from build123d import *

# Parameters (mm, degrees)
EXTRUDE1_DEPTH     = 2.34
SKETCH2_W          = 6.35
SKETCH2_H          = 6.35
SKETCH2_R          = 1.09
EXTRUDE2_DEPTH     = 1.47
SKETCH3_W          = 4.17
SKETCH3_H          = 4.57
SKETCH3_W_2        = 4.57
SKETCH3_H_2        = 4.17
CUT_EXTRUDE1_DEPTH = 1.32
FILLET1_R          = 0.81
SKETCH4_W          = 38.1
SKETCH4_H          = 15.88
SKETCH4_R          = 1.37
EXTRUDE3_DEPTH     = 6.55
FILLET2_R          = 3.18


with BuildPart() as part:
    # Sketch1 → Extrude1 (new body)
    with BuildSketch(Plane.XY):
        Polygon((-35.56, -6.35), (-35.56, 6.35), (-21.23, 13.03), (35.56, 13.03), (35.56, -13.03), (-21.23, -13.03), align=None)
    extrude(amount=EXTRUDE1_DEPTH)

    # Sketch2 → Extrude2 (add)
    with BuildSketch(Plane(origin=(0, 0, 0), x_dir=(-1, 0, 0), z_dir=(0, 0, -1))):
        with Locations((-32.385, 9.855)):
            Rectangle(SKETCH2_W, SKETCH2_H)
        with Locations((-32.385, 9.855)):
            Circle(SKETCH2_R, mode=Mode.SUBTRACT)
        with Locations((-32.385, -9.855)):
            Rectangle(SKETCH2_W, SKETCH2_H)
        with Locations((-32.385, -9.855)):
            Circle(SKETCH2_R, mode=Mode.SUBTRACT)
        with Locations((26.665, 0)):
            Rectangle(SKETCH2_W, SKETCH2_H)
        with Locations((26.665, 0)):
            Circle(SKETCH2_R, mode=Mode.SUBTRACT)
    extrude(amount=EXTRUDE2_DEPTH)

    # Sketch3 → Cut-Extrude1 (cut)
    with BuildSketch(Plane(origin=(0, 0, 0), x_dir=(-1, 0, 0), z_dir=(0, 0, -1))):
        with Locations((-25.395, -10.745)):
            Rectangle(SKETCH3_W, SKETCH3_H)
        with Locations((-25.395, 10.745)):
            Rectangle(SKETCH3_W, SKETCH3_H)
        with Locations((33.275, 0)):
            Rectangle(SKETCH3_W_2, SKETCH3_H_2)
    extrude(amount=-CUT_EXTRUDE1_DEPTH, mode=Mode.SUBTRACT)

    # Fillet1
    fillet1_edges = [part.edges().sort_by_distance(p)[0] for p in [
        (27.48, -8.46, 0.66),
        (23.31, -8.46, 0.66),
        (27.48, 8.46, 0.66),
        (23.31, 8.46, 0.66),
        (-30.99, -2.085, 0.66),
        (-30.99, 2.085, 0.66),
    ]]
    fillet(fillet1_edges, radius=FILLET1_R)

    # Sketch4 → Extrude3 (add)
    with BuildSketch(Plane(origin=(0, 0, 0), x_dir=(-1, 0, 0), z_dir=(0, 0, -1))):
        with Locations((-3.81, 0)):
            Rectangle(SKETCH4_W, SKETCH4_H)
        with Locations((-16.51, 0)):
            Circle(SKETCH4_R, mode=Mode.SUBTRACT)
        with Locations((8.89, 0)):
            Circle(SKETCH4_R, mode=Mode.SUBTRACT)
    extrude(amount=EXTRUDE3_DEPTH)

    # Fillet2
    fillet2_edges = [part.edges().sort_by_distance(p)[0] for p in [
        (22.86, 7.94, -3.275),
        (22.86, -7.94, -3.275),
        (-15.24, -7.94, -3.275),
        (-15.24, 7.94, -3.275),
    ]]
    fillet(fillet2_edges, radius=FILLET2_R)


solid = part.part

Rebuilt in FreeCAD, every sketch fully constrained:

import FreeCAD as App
import Part
import Sketcher

V = App.Vector
Q = App.Units.Quantity


def edges_at(feature, points):
    """Names of the edges that pass closest to the given points."""
    edges = feature.Shape.Edges
    near = lambda p: min(range(len(edges)), key=lambda i: edges[i].distToShape(Part.Vertex(*p))[0])
    return sorted({f"Edge{near(p) + 1}" for p in points})


def add_polygon(sketch, points):
    """Adds a closed chain of lines whose ends are joined by coincident constraints."""
    first, n = sketch.GeometryCount, len(points)
    for a, b in zip(points, points[1:] + points[:1]):
        sketch.addGeometry(Part.LineSegment(App.Vector(*a, 0), App.Vector(*b, 0)), False)
    for i in range(n):
        sketch.addConstraint(Sketcher.Constraint("Coincident", first + i, 2, first + (i + 1) % n, 1))

doc = App.newDocument("Part")
body = doc.addObject("PartDesign::Body", "Body")

# Sketch on XY plane
sketch1 = body.newObject("Sketcher::SketchObject", "Sketch")
sketch1.AttachmentSupport = (doc.getObject("XY_Plane"), [""])
sketch1.MapMode = "FlatFace"
add_polygon(sketch1, [(-36, 6), (-36, -6), (-21, -13), (36, -13), (36, 13), (-21, 13)])  # lines 0-5
sketch1.addConstraint([
    Sketcher.Constraint("Vertical", 0),
    Sketcher.Constraint("Horizontal", 2),
    Sketcher.Constraint("Vertical", 3),
    Sketcher.Constraint("Horizontal", 4),
    Sketcher.Constraint("Symmetric", 1, 2, 4, 2, -1),
    Sketcher.Constraint("Equal", 1, 5),
    Sketcher.Constraint("DistanceY", 0, 2, 0, 1, Q("0.5 in")),
    Sketcher.Constraint("DistanceX", 0, 2, -1, 1, Q("1.4 in")),
    Sketcher.Constraint("DistanceX", -1, 1, 2, 2, Q("1.4 in")),
    Sketcher.Constraint("DistanceX", 2, 1, 2, 2, 56.79),
    Sketcher.Constraint("DistanceY", 3, 1, 3, 2, 26.06),
])
pad1 = body.newObject("PartDesign::Pad", "Pad")
pad1.Profile = sketch1
pad1.Length = 2.34

# Sketch on XY plane
sketch2 = body.newObject("Sketcher::SketchObject", "Sketch001")
sketch2.AttachmentSupport = (doc.getObject("XY_Plane"), [""])
sketch2.MapMode = "FlatFace"
add_polygon(sketch2, [(35.6, 13), (35.6, 6.7), (29.2, 6.7), (29.2, 13)])  # lines 0-3
sketch2.addGeometry(Part.Circle(V(32.4, 9.9, 0), V(0, 0, 1), 1.1), False)  # 4
add_polygon(sketch2, [(35.6, -6.7), (35.6, -13), (29.2, -13), (29.2, -6.7)])  # lines 5-8
sketch2.addGeometry(Part.Circle(V(32.4, -9.9, 0), V(0, 0, 1), 1.1), False)  # 9
add_polygon(sketch2, [(-23.5, 3.2), (-23.5, -3.2), (-29.8, -3.2), (-29.8, 3.2)])  # lines 10-13
sketch2.addGeometry(Part.Circle(V(-26.7, 0, 0), V(0, 0, 1), 1.1), False)  # 14
sketch2.addConstraint([
    Sketcher.Constraint("Vertical", 0),
    Sketcher.Constraint("Horizontal", 1),
    Sketcher.Constraint("Vertical", 2),
    Sketcher.Constraint("Horizontal", 3),
    Sketcher.Constraint("Vertical", 5),
    Sketcher.Constraint("Horizontal", 6),
    Sketcher.Constraint("Vertical", 7),
    Sketcher.Constraint("Horizontal", 8),
    Sketcher.Constraint("Vertical", 10),
    Sketcher.Constraint("Horizontal", 11),
    Sketcher.Constraint("Vertical", 12),
    Sketcher.Constraint("Horizontal", 13),
    Sketcher.Constraint("Equal", 4, 9),
    Sketcher.Constraint("Equal", 9, 14),
    Sketcher.Constraint("Symmetric", 4, 3, 9, 3, -1),
    Sketcher.Constraint("Symmetric", 3, 2, 5, 2, -1),
    Sketcher.Constraint("Symmetric", 1, 2, 7, 2, -1),
    Sketcher.Constraint("PointOnObject", 14, 3, -1),
    Sketcher.Constraint("Equal", 8, 11),
    Sketcher.Constraint("Equal", 13, 0),
    Sketcher.Constraint("Equal", 7, 10),
    Sketcher.Constraint("DistanceX", 1, 2, 1, 1, Q("0.25 in")),
    Sketcher.Constraint("DistanceX", -1, 1, 0, 2, Q("1.4 in")),
    Sketcher.Constraint("Diameter", 4, 2.18),
    Sketcher.Constraint("DistanceX", -1, 1, 4, 3, Q("1.275 in")),
    Sketcher.Constraint("DistanceY", 10, 2, -1, 1, Q("0.125 in")),
    Sketcher.Constraint("DistanceY", 0, 2, 4, 3, Q("0.125 in")),
    Sketcher.Constraint("DistanceX", 14, 3, 10, 2, Q("0.125 in")),
    Sketcher.Constraint("DistanceY", -1, 1, 4, 3, 9.855),
    Sketcher.Constraint("DistanceX", 14, 3, -1, 1, 26.665),
])
pad2 = body.newObject("PartDesign::Pad", "Pad001")
pad2.Profile = sketch2
pad2.Length = 1.47
pad2.Reversed = True

# Sketch on XY plane
sketch3 = body.newObject("Sketcher::SketchObject", "Sketch002")
sketch3.AttachmentSupport = (doc.getObject("XY_Plane"), [""])
sketch3.MapMode = "FlatFace"
add_polygon(sketch3, [(27.5, -8.5), (27.5, -13), (23.3, -13), (23.3, -8.5)])  # lines 0-3
add_polygon(sketch3, [(27.5, 13), (27.5, 8.5), (23.3, 8.5), (23.3, 13)])  # lines 4-7
add_polygon(sketch3, [(-31, 2.1), (-31, -2.1), (-35.6, -2.1), (-35.6, 2.1)])  # lines 8-11
sketch3.addConstraint([
    Sketcher.Constraint("Vertical", 0),
    Sketcher.Constraint("Horizontal", 1),
    Sketcher.Constraint("Vertical", 2),
    Sketcher.Constraint("Horizontal", 3),
    Sketcher.Constraint("Vertical", 4),
    Sketcher.Constraint("Horizontal", 5),
    Sketcher.Constraint("Vertical", 6),
    Sketcher.Constraint("Horizontal", 7),
    Sketcher.Constraint("Vertical", 8),
    Sketcher.Constraint("Horizontal", 9),
    Sketcher.Constraint("Vertical", 10),
    Sketcher.Constraint("Horizontal", 11),
    Sketcher.Constraint("Symmetric", 3, 2, 4, 2, -1),
    Sketcher.Constraint("Symmetric", 1, 2, 6, 2, -1),
    Sketcher.Constraint("Equal", 11, 0),
    Sketcher.Constraint("Equal", 7, 8),
    Sketcher.Constraint("DistanceX", 9, 2, -1, 1, Q("1.4 in")),
    Sketcher.Constraint("DistanceX", 1, 2, 1, 1, 4.17),
    Sketcher.Constraint("DistanceX", 9, 2, 9, 1, 4.57),
    Sketcher.Constraint("DistanceX", -1, 1, 0, 2, 27.48),
    Sketcher.Constraint("DistanceY", 0, 2, -1, 1, 13.03),
    Sketcher.Constraint("DistanceY", 8, 2, -1, 1, 2.085),
])
pocket1 = body.newObject("PartDesign::Pocket", "Pocket")
pocket1.Profile = sketch3
pocket1.Length = 1.32
pocket1.Reversed = True
doc.recompute()

fillet = body.newObject("PartDesign::Fillet", "Fillet")
fillet.Base = (pocket1, edges_at(pocket1, [
    (27.48, -8.46, 0.66),
    (23.31, -8.46, 0.66),
    (27.48, 8.46, 0.66),
    (23.31, 8.46, 0.66),
    (-30.99, -2.085, 0.66),
    (-30.99, 2.085, 0.66),
]))
fillet.Radius = 0.81

# Sketch on XY plane
sketch4 = body.newObject("Sketcher::SketchObject", "Sketch003")
sketch4.AttachmentSupport = (doc.getObject("XY_Plane"), [""])
sketch4.MapMode = "FlatFace"
add_polygon(sketch4, [(22.9, 7.9), (22.9, -7.9), (-15.2, -7.9), (-15.2, 7.9)])  # lines 0-3
sketch4.addGeometry(Part.Circle(V(16.5, 0, 0), V(0, 0, 1), 1.4), False)  # 4
sketch4.addGeometry(Part.Circle(V(-8.9, 0, 0), V(0, 0, 1), 1.4), False)  # 5
sketch4.addConstraint([
    Sketcher.Constraint("Vertical", 0),
    Sketcher.Constraint("Horizontal", 1),
    Sketcher.Constraint("Vertical", 2),
    Sketcher.Constraint("Horizontal", 3),
    Sketcher.Constraint("Equal", 4, 5),
    Sketcher.Constraint("PointOnObject", 4, 3, -1),
    Sketcher.Constraint("PointOnObject", 5, 3, -1),
    Sketcher.Constraint("DistanceX", 1, 2, 1, 1, Q("1.5 in")),
    Sketcher.Constraint("DistanceX", 5, 3, 4, 3, Q("1 in")),
    Sketcher.Constraint("DistanceX", -1, 1, 0, 2, Q("0.9 in")),
    Sketcher.Constraint("Diameter", 4, 2.74),
    Sketcher.Constraint("DistanceX", -1, 1, 4, 3, Q("0.65 in")),
    Sketcher.Constraint("DistanceY", 0, 2, 0, 1, 15.88),
    Sketcher.Constraint("DistanceY", 0, 2, -1, 1, 7.94),
])
pad3 = body.newObject("PartDesign::Pad", "Pad002")
pad3.Profile = sketch4
pad3.Length = 6.55
pad3.Reversed = True
doc.recompute()

fillet2 = body.newObject("PartDesign::Fillet", "Fillet001")
fillet2.Base = (pad3, edges_at(pad3, [
    (22.86, 7.94, -3.275),
    (22.86, -7.94, -3.275),
    (-15.24, -7.94, -3.275),
    (-15.24, 7.94, -3.275),
]))
fillet2.Radius = 3.18

doc.recompute()
